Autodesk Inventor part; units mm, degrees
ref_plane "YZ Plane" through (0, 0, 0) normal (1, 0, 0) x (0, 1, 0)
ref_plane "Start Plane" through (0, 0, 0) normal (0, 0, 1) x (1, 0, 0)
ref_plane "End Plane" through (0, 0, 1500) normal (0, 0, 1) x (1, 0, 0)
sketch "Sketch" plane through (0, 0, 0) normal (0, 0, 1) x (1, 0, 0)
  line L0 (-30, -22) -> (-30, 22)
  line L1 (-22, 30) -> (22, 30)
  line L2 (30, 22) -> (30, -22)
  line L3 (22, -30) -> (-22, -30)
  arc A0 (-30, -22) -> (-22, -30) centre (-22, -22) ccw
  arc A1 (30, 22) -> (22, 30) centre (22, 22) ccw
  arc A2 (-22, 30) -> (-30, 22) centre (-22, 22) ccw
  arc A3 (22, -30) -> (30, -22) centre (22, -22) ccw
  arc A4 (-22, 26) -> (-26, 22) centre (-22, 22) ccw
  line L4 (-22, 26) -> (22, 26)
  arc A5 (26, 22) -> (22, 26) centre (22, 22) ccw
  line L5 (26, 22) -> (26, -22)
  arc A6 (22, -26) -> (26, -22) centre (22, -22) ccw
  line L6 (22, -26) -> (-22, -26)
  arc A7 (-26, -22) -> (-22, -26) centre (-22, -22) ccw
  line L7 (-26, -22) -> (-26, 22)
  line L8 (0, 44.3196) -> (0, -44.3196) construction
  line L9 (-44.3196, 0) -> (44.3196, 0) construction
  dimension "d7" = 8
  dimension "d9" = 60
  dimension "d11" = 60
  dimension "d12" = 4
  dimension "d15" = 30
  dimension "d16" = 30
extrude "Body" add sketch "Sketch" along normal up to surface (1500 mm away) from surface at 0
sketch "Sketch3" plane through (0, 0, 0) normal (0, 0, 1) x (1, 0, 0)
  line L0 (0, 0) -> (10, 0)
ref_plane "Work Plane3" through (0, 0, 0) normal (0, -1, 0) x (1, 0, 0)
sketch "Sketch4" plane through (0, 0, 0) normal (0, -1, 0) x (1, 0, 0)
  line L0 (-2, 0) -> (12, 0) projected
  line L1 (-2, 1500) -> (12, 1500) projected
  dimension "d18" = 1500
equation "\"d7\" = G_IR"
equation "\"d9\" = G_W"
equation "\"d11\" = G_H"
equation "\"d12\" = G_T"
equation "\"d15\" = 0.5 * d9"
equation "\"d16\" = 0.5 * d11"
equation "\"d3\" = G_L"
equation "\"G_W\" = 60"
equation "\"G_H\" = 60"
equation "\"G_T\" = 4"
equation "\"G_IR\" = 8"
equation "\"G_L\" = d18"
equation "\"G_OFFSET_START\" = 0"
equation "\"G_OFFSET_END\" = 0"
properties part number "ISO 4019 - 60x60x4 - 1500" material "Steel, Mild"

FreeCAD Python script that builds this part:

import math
import FreeCAD as App
import Part
import Sketcher

V = App.Vector

doc = App.newDocument("Part")
params = doc.addObject("Spreadsheet::Sheet", "Params")
for row, (alias, value) in enumerate([
    ("sketch1_radius", "8 mm"),
    ("sketch1_radius2", "4 mm"),
    ("pad1_length", "1500 mm"),
], start=1):
    params.set(f"A{row}", alias)
    params.set(f"B{row}", "=" + value)
    params.setAlias(f"B{row}", alias)

body = doc.addObject("PartDesign::Body", "Body")

# Sketch on XY plane
sketch1 = body.newObject("Sketcher::SketchObject", "Sketch")
sketch1.AttachmentSupport = (doc.getObject("XY_Plane"), [""])
sketch1.MapMode = "FlatFace"
sketch1.addGeometry(Part.LineSegment(V(-30, 22, 0), V(-30, -22, 0)), False)
sketch1.addGeometry(Part.ArcOfCircle(Part.Circle(V(-22, -22, 0), V(0, 0, 1), 8), math.radians(180), math.radians(270)), False)
sketch1.addGeometry(Part.LineSegment(V(-22, -30, 0), V(22, -30, 0)), False)
sketch1.addGeometry(Part.ArcOfCircle(Part.Circle(V(22, -22, 0), V(0, 0, 1), 8), math.radians(-90), math.radians(0)), False)
sketch1.addGeometry(Part.LineSegment(V(30, -22, 0), V(30, 22, 0)), False)
sketch1.addGeometry(Part.ArcOfCircle(Part.Circle(V(22, 22, 0), V(0, 0, 1), 8), math.radians(0), math.radians(90)), False)
sketch1.addGeometry(Part.LineSegment(V(22, 30, 0), V(-22, 30, 0)), False)
sketch1.addGeometry(Part.ArcOfCircle(Part.Circle(V(-22, 22, 0), V(0, 0, 1), 8), math.radians(90), math.radians(180)), False)
sketch1.addGeometry(Part.ArcOfCircle(Part.Circle(V(-22, 22, 0), V(0, 0, 1), 4), math.radians(90), math.radians(180)), False)
sketch1.addGeometry(Part.LineSegment(V(-22, 26, 0), V(22, 26, 0)), False)
sketch1.addGeometry(Part.ArcOfCircle(Part.Circle(V(22, 22, 0), V(0, 0, 1), 4), math.radians(0), math.radians(90)), False)
sketch1.addGeometry(Part.LineSegment(V(26, 22, 0), V(26, -22, 0)), False)
sketch1.addGeometry(Part.ArcOfCircle(Part.Circle(V(22, -22, 0), V(0, 0, 1), 4), math.radians(-90), math.radians(0)), False)
sketch1.addGeometry(Part.LineSegment(V(22, -26, 0), V(-22, -26, 0)), False)
sketch1.addGeometry(Part.ArcOfCircle(Part.Circle(V(-22, -22, 0), V(0, 0, 1), 4), math.radians(180), math.radians(270)), False)
sketch1.addGeometry(Part.LineSegment(V(-26, -22, 0), V(-26, 22, 0)), False)
sketch1.addConstraint(Sketcher.Constraint("Tangent", 0, 2, 1, 1))
sketch1.addConstraint(Sketcher.Constraint("Tangent", 1, 2, 2, 1))
sketch1.addConstraint(Sketcher.Constraint("Tangent", 2, 2, 3, 1))
sketch1.addConstraint(Sketcher.Constraint("Tangent", 3, 2, 4, 1))
sketch1.addConstraint(Sketcher.Constraint("Tangent", 4, 2, 5, 1))
sketch1.addConstraint(Sketcher.Constraint("Tangent", 5, 2, 6, 1))
sketch1.addConstraint(Sketcher.Constraint("Tangent", 6, 2, 7, 1))
sketch1.addConstraint(Sketcher.Constraint("Tangent", 7, 2, 0, 1))
sketch1.addConstraint(Sketcher.Constraint("Tangent", 8, 1, 9, 1))
sketch1.addConstraint(Sketcher.Constraint("Tangent", 9, 2, 10, 2))
sketch1.addConstraint(Sketcher.Constraint("Tangent", 10, 1, 11, 1))
sketch1.addConstraint(Sketcher.Constraint("Tangent", 11, 2, 12, 2))
sketch1.addConstraint(Sketcher.Constraint("Tangent", 12, 1, 13, 1))
sketch1.addConstraint(Sketcher.Constraint("Tangent", 13, 2, 14, 2))
sketch1.addConstraint(Sketcher.Constraint("Tangent", 14, 1, 15, 1))
sketch1.addConstraint(Sketcher.Constraint("Tangent", 15, 2, 8, 2))
sketch1.addConstraint(Sketcher.Constraint("Vertical", 0))
sketch1.addConstraint(Sketcher.Constraint("Horizontal", 2))
sketch1.addConstraint(Sketcher.Constraint("Vertical", 4))
sketch1.addConstraint(Sketcher.Constraint("Horizontal", 6))
sketch1.addConstraint(Sketcher.Constraint("Horizontal", 9))
sketch1.addConstraint(Sketcher.Constraint("Vertical", 11))
sketch1.addConstraint(Sketcher.Constraint("Horizontal", 13))
sketch1.addConstraint(Sketcher.Constraint("Vertical", 15))
sketch1.addConstraint(Sketcher.Constraint("Coincident", 8, 3, 7, 3))
sketch1.addConstraint(Sketcher.Constraint("Coincident", 10, 3, 5, 3))
sketch1.addConstraint(Sketcher.Constraint("Coincident", 12, 3, 3, 3))
sketch1.addConstraint(Sketcher.Constraint("Equal", 1, 3))
sketch1.addConstraint(Sketcher.Constraint("Equal", 3, 5))
sketch1.addConstraint(Sketcher.Constraint("Equal", 5, 7))
sketch1.addConstraint(Sketcher.Constraint("Equal", 12, 14))
sketch1.addConstraint(Sketcher.Constraint("Symmetric", 1, 3, 5, 3, -1, 1))
sketch1.addConstraint(Sketcher.Constraint("Equal", 13, 0))
sketch1.addConstraint(Sketcher.Constraint("Radius", 1, 8.0))
sketch1.addConstraint(Sketcher.Constraint("Radius", 8, 4.0))
sketch1.addConstraint(Sketcher.Constraint("DistanceX", 0, 2, -1, 1, 30.0))
sketch1.setExpression("Constraints[33]", "Params.sketch1_radius")
sketch1.setExpression("Constraints[34]", "Params.sketch1_radius2")
pad1 = body.newObject("PartDesign::Pad", "Pad")
pad1.Profile = sketch1
pad1.setExpression("Length", "Params.pad1_length")

doc.recompute()
